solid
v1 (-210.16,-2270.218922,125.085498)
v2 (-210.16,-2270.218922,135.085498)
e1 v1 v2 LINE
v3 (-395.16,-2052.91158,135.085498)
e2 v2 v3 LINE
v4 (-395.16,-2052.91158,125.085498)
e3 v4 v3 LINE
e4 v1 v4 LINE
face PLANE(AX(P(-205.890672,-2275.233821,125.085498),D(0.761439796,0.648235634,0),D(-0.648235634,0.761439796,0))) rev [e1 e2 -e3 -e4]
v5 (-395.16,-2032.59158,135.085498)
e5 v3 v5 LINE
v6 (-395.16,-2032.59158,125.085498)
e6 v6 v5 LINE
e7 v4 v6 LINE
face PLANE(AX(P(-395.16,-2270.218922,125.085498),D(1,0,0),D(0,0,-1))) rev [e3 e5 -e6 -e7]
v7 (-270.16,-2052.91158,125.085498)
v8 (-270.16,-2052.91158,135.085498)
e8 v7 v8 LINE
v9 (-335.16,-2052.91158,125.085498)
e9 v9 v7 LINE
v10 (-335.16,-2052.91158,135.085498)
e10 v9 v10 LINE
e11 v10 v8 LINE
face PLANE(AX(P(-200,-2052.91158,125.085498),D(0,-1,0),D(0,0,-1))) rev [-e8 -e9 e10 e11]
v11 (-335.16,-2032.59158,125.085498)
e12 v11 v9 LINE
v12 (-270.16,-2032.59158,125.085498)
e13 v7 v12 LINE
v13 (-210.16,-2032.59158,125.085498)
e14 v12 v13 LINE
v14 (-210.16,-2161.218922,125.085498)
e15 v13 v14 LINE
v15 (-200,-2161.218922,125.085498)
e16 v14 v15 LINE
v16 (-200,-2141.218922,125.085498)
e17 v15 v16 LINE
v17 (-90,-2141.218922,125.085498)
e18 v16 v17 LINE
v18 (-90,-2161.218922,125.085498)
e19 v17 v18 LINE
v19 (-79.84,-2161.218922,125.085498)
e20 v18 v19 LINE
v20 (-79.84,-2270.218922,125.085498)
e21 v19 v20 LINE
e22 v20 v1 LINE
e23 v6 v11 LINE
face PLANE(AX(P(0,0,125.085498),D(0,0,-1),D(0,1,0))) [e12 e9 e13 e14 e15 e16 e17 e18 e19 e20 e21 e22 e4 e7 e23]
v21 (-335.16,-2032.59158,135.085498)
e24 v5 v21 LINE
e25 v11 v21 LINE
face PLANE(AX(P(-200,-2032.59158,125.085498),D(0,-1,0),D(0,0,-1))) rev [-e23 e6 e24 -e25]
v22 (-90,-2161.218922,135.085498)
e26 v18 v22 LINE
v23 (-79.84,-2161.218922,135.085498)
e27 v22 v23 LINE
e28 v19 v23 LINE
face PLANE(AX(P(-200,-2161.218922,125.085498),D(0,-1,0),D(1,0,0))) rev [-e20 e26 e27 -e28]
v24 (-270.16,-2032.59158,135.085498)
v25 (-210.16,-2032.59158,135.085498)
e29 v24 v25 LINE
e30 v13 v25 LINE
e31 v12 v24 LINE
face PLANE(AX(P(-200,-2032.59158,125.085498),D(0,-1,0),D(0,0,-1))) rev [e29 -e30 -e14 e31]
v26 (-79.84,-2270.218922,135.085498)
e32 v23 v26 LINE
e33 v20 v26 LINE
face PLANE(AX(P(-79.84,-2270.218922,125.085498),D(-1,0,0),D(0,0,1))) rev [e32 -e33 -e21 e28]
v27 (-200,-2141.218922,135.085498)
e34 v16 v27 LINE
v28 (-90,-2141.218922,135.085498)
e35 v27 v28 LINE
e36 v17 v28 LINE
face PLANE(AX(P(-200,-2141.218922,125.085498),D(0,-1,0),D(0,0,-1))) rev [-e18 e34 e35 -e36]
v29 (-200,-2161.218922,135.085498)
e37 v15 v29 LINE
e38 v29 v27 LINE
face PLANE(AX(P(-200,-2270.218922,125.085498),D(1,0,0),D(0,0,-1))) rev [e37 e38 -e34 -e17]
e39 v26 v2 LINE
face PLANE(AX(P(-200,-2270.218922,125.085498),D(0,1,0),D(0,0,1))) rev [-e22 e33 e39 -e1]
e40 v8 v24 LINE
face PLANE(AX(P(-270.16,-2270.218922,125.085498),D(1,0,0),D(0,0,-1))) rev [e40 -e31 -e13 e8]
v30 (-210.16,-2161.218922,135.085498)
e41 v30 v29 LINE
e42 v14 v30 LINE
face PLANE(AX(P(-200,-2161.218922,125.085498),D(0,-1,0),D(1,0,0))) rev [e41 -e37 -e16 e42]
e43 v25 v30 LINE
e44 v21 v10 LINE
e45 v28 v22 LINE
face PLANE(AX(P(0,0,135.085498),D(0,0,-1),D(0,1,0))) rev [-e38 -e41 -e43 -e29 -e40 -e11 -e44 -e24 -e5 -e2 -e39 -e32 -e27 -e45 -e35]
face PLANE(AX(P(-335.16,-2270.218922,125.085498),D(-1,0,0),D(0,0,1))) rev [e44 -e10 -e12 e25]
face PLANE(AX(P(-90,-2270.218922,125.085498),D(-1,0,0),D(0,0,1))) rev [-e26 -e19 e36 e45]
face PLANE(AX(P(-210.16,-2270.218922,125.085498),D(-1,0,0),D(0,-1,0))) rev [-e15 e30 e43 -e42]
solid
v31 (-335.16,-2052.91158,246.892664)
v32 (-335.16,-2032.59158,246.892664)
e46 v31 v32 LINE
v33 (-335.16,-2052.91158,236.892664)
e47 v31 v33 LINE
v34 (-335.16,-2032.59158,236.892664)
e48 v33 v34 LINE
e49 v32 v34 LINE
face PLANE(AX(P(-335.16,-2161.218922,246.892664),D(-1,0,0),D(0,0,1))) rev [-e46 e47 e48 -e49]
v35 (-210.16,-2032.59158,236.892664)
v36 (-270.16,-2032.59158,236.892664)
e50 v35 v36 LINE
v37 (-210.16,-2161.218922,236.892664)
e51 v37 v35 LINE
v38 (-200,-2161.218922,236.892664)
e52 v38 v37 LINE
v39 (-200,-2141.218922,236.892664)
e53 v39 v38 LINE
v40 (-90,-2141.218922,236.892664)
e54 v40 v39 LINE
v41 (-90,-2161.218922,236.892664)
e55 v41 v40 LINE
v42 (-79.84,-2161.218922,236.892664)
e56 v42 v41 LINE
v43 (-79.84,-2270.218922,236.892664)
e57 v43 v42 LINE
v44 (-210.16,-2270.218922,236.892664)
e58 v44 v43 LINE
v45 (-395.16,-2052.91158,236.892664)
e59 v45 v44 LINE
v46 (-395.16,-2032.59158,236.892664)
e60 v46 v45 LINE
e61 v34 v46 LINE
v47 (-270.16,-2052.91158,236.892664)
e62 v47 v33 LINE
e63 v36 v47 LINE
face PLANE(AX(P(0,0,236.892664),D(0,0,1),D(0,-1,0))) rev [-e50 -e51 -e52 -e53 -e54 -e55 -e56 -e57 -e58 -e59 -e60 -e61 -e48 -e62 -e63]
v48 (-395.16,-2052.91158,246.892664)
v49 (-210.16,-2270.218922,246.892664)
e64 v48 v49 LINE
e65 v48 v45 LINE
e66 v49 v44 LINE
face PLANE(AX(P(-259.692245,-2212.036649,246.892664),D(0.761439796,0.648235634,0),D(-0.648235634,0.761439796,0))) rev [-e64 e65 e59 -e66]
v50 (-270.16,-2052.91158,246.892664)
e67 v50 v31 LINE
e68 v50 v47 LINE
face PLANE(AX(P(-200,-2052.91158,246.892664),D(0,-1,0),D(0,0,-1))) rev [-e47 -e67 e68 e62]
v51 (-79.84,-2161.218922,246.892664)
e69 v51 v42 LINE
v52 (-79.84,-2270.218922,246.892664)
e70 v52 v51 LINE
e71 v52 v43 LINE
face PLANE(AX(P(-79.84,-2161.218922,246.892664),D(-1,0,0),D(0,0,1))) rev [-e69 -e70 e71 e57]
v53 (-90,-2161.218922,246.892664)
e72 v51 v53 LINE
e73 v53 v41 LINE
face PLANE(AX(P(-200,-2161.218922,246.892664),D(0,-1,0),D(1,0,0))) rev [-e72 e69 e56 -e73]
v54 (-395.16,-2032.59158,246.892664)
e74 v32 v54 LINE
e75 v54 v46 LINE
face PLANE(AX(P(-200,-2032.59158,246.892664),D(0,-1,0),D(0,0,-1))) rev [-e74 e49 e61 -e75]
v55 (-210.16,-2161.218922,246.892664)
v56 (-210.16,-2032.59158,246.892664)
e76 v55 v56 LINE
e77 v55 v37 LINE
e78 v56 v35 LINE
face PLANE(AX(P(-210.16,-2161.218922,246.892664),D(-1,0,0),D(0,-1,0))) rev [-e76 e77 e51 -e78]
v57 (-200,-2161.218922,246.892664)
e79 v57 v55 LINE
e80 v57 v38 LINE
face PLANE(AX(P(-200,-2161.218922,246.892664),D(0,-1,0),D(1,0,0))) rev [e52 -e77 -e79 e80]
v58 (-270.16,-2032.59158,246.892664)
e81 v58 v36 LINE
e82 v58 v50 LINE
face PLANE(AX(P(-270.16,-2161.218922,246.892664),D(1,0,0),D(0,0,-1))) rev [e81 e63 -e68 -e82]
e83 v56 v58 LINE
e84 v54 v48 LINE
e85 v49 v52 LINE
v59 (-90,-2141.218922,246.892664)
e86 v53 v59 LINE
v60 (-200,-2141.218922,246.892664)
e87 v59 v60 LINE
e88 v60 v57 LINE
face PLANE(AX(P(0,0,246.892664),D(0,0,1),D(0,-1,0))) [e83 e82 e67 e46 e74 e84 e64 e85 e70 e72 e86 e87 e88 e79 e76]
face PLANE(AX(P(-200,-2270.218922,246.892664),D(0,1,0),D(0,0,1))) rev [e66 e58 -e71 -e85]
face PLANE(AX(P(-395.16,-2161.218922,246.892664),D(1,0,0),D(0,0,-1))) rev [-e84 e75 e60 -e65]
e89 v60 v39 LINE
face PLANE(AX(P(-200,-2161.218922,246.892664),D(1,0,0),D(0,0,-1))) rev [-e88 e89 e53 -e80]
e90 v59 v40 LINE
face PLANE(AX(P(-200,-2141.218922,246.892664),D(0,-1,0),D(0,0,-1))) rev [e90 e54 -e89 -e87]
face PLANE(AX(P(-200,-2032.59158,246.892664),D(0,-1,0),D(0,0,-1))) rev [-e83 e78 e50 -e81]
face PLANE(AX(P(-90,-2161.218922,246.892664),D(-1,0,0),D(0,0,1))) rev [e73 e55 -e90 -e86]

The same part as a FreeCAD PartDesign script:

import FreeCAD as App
import Part
import Sketcher
from FreeCAD import Vector
Q = App.Units.Quantity

doc = App.newDocument("Part")
params = doc.addObject("Spreadsheet::Sheet", "Params")
for row, (alias, value) in enumerate([
    ("sketch1_width", "60 mm"),
    ("sketch1_width2", "65 mm"),
    ("sketch1_width3", "110 mm"),
    ("sketch1_height", "109 mm"),
    ("sketch1_height2", "20 mm"),
    ("pad1_length", "10 mm"),
    ("sketch2_width", "60 mm"),
    ("sketch2_width2", "65 mm"),
    ("sketch2_width3", "110 mm"),
    ("sketch2_height", "109 mm"),
    ("sketch2_height2", "20 mm"),
    ("pad2_length", "10 mm"),
], start=1):
    params.set(f"A{row}", alias)
    params.set(f"B{row}", "=" + value)
    params.setAlias(f"B{row}", alias)

body = doc.addObject("PartDesign::Body", "Body")

sketch1 = body.newObject("Sketcher::SketchObject", "Sketch")
sketch1.AttachmentSupport = (doc.getObject("XY_Plane"), [""])
sketch1.MapMode = "FlatFace"
sketch1.AttachmentOffset = App.Placement(Vector(0, 0, 236.892664), App.Rotation())
sketch1.addGeometry(Part.LineSegment(Vector(-200, -2161, 0), Vector(-210, -2161, 0)), False)
sketch1.addGeometry(Part.LineSegment(Vector(-210, -2161, 0), Vector(-210, -2033, 0)), False)
sketch1.addGeometry(Part.LineSegment(Vector(-210, -2033, 0), Vector(-270, -2033, 0)), False)
sketch1.addGeometry(Part.LineSegment(Vector(-270, -2033, 0), Vector(-270, -2053, 0)), False)
sketch1.addGeometry(Part.LineSegment(Vector(-270, -2053, 0), Vector(-335, -2053, 0)), False)
sketch1.addGeometry(Part.LineSegment(Vector(-335, -2053, 0), Vector(-335, -2033, 0)), False)
sketch1.addGeometry(Part.LineSegment(Vector(-335, -2033, 0), Vector(-395, -2033, 0)), False)
sketch1.addGeometry(Part.LineSegment(Vector(-395, -2033, 0), Vector(-395, -2053, 0)), False)
sketch1.addGeometry(Part.LineSegment(Vector(-395, -2053, 0), Vector(-210, -2270, 0)), False)
sketch1.addGeometry(Part.LineSegment(Vector(-210, -2270, 0), Vector(-80, -2270, 0)), False)
sketch1.addGeometry(Part.LineSegment(Vector(-80, -2270, 0), Vector(-80, -2161, 0)), False)
sketch1.addGeometry(Part.LineSegment(Vector(-80, -2161, 0), Vector(-90, -2161, 0)), False)
sketch1.addGeometry(Part.LineSegment(Vector(-90, -2161, 0), Vector(-90, -2141, 0)), False)
sketch1.addGeometry(Part.LineSegment(Vector(-90, -2141, 0), Vector(-200, -2141, 0)), False)
sketch1.addGeometry(Part.LineSegment(Vector(-200, -2141, 0), Vector(-200, -2161, 0)), False)
sketch1.addConstraint(Sketcher.Constraint("Coincident", 0, 2, 1, 1))
sketch1.addConstraint(Sketcher.Constraint("Coincident", 1, 2, 2, 1))
sketch1.addConstraint(Sketcher.Constraint("Coincident", 2, 2, 3, 1))
sketch1.addConstraint(Sketcher.Constraint("Coincident", 3, 2, 4, 1))
sketch1.addConstraint(Sketcher.Constraint("Coincident", 4, 2, 5, 1))
sketch1.addConstraint(Sketcher.Constraint("Coincident", 5, 2, 6, 1))
sketch1.addConstraint(Sketcher.Constraint("Coincident", 6, 2, 7, 1))
sketch1.addConstraint(Sketcher.Constraint("Coincident", 7, 2, 8, 1))
sketch1.addConstraint(Sketcher.Constraint("Coincident", 8, 2, 9, 1))
sketch1.addConstraint(Sketcher.Constraint("Coincident", 9, 2, 10, 1))
sketch1.addConstraint(Sketcher.Constraint("Coincident", 10, 2, 11, 1))
sketch1.addConstraint(Sketcher.Constraint("Coincident", 11, 2, 12, 1))
sketch1.addConstraint(Sketcher.Constraint("Coincident", 12, 2, 13, 1))
sketch1.addConstraint(Sketcher.Constraint("Coincident", 13, 2, 14, 1))
sketch1.addConstraint(Sketcher.Constraint("Coincident", 14, 2, 0, 1))
sketch1.addConstraint(Sketcher.Constraint("Horizontal", 0))
sketch1.addConstraint(Sketcher.Constraint("Vertical", 1))
sketch1.addConstraint(Sketcher.Constraint("Horizontal", 2))
sketch1.addConstraint(Sketcher.Constraint("Vertical", 3))
sketch1.addConstraint(Sketcher.Constraint("Horizontal", 4))
sketch1.addConstraint(Sketcher.Constraint("Vertical", 5))
sketch1.addConstraint(Sketcher.Constraint("Horizontal", 6))
sketch1.addConstraint(Sketcher.Constraint("Vertical", 7))
sketch1.addConstraint(Sketcher.Constraint("Horizontal", 9))
sketch1.addConstraint(Sketcher.Constraint("Vertical", 10))
sketch1.addConstraint(Sketcher.Constraint("Horizontal", 11))
sketch1.addConstraint(Sketcher.Constraint("Vertical", 12))
sketch1.addConstraint(Sketcher.Constraint("Horizontal", 13))
sketch1.addConstraint(Sketcher.Constraint("Vertical", 14))
sketch1.addConstraint(Sketcher.Constraint("Horizontal", 2, 2, 5, 2))
sketch1.addConstraint(Sketcher.Constraint("Horizontal", 4, 2, 7, 2))
sketch1.addConstraint(Sketcher.Constraint("Horizontal", 0, 2, 10, 2))
sketch1.addConstraint(Sketcher.Constraint("Vertical", 1, 2, 8, 2))
sketch1.addConstraint(Sketcher.Constraint("Equal", 2, 6))
sketch1.addConstraint(Sketcher.Constraint("Equal", 0, 11))
sketch1.addConstraint(Sketcher.Constraint("DistanceX", 2, 2, 2, 1, Q("60 mm")))
sketch1.addConstraint(Sketcher.Constraint("DistanceX", 4, 2, 4, 1, Q("65 mm")))
sketch1.addConstraint(Sketcher.Constraint("DistanceX", 13, 2, 13, 1, Q("110 mm")))
sketch1.addConstraint(Sketcher.Constraint("DistanceY", 10, 1, 10, 2, Q("109 mm")))
sketch1.addConstraint(Sketcher.Constraint("DistanceY", 12, 1, 12, 2, Q("20 mm")))
sketch1.addConstraint(Sketcher.Constraint("DistanceX", 11, 2, -1, 1, Q("90 mm")))
sketch1.addConstraint(Sketcher.Constraint("DistanceX", 0, 2, 0, 1, Q("10.16 mm")))
sketch1.addConstraint(Sketcher.Constraint("DistanceY", 3, 2, 3, 1, Q("20.32 mm")))
sketch1.addConstraint(Sketcher.Constraint("DistanceY", 1, 1, 1, 2, Q("128.627341 mm")))
sketch1.addConstraint(Sketcher.Constraint("DistanceY", 0, 2, -1, 1, Q("2161.218922 mm")))
sketch1.setExpression("Constraints[35]", "Params.sketch1_width")
sketch1.setExpression("Constraints[36]", "Params.sketch1_width2")
sketch1.setExpression("Constraints[37]", "Params.sketch1_width3")
sketch1.setExpression("Constraints[38]", "Params.sketch1_height")
sketch1.setExpression("Constraints[39]", "Params.sketch1_height2")
pad1 = body.newObject("PartDesign::Pad", "Pad")
pad1.Profile = sketch1
pad1.setExpression("Length", "Params.pad1_length")
body2 = doc.addObject("PartDesign::Body", "Body001")

sketch2 = body2.newObject("Sketcher::SketchObject", "Sketch001")
sketch2.AttachmentSupport = (doc.getObject("XY_Plane001"), [""])
sketch2.MapMode = "FlatFace"
sketch2.AttachmentOffset = App.Placement(Vector(0, 0, 125.085498), App.Rotation())
sketch2.addGeometry(Part.LineSegment(Vector(-200, -2161, 0), Vector(-210, -2161, 0)), False)
sketch2.addGeometry(Part.LineSegment(Vector(-210, -2161, 0), Vector(-210, -2033, 0)), False)
sketch2.addGeometry(Part.LineSegment(Vector(-210, -2033, 0), Vector(-270, -2033, 0)), False)
sketch2.addGeometry(Part.LineSegment(Vector(-270, -2033, 0), Vector(-270, -2053, 0)), False)
sketch2.addGeometry(Part.LineSegment(Vector(-270, -2053, 0), Vector(-335, -2053, 0)), False)
sketch2.addGeometry(Part.LineSegment(Vector(-335, -2053, 0), Vector(-335, -2033, 0)), False)
sketch2.addGeometry(Part.LineSegment(Vector(-335, -2033, 0), Vector(-395, -2033, 0)), False)
sketch2.addGeometry(Part.LineSegment(Vector(-395, -2033, 0), Vector(-395, -2053, 0)), False)
sketch2.addGeometry(Part.LineSegment(Vector(-395, -2053, 0), Vector(-210, -2270, 0)), False)
sketch2.addGeometry(Part.LineSegment(Vector(-210, -2270, 0), Vector(-80, -2270, 0)), False)
sketch2.addGeometry(Part.LineSegment(Vector(-80, -2270, 0), Vector(-80, -2161, 0)), False)
sketch2.addGeometry(Part.LineSegment(Vector(-80, -2161, 0), Vector(-90, -2161, 0)), False)
sketch2.addGeometry(Part.LineSegment(Vector(-90, -2161, 0), Vector(-90, -2141, 0)), False)
sketch2.addGeometry(Part.LineSegment(Vector(-90, -2141, 0), Vector(-200, -2141, 0)), False)
sketch2.addGeometry(Part.LineSegment(Vector(-200, -2141, 0), Vector(-200, -2161, 0)), False)
sketch2.addConstraint(Sketcher.Constraint("Coincident", 0, 2, 1, 1))
sketch2.addConstraint(Sketcher.Constraint("Coincident", 1, 2, 2, 1))
sketch2.addConstraint(Sketcher.Constraint("Coincident", 2, 2, 3, 1))
sketch2.addConstraint(Sketcher.Constraint("Coincident", 3, 2, 4, 1))
sketch2.addConstraint(Sketcher.Constraint("Coincident", 4, 2, 5, 1))
sketch2.addConstraint(Sketcher.Constraint("Coincident", 5, 2, 6, 1))
sketch2.addConstraint(Sketcher.Constraint("Coincident", 6, 2, 7, 1))
sketch2.addConstraint(Sketcher.Constraint("Coincident", 7, 2, 8, 1))
sketch2.addConstraint(Sketcher.Constraint("Coincident", 8, 2, 9, 1))
sketch2.addConstraint(Sketcher.Constraint("Coincident", 9, 2, 10, 1))
sketch2.addConstraint(Sketcher.Constraint("Coincident", 10, 2, 11, 1))
sketch2.addConstraint(Sketcher.Constraint("Coincident", 11, 2, 12, 1))
sketch2.addConstraint(Sketcher.Constraint("Coincident", 12, 2, 13, 1))
sketch2.addConstraint(Sketcher.Constraint("Coincident", 13, 2, 14, 1))
sketch2.addConstraint(Sketcher.Constraint("Coincident", 14, 2, 0, 1))
sketch2.addConstraint(Sketcher.Constraint("Horizontal", 0))
sketch2.addConstraint(Sketcher.Constraint("Vertical", 1))
sketch2.addConstraint(Sketcher.Constraint("Horizontal", 2))
sketch2.addConstraint(Sketcher.Constraint("Vertical", 3))
sketch2.addConstraint(Sketcher.Constraint("Horizontal", 4))
sketch2.addConstraint(Sketcher.Constraint("Vertical", 5))
sketch2.addConstraint(Sketcher.Constraint("Horizontal", 6))
sketch2.addConstraint(Sketcher.Constraint("Vertical", 7))
sketch2.addConstraint(Sketcher.Constraint("Horizontal", 9))
sketch2.addConstraint(Sketcher.Constraint("Vertical", 10))
sketch2.addConstraint(Sketcher.Constraint("Horizontal", 11))
sketch2.addConstraint(Sketcher.Constraint("Vertical", 12))
sketch2.addConstraint(Sketcher.Constraint("Horizontal", 13))
sketch2.addConstraint(Sketcher.Constraint("Vertical", 14))
sketch2.addConstraint(Sketcher.Constraint("Horizontal", 2, 2, 5, 2))
sketch2.addConstraint(Sketcher.Constraint("Horizontal", 4, 2, 7, 2))
sketch2.addConstraint(Sketcher.Constraint("Horizontal", 0, 2, 10, 2))
sketch2.addConstraint(Sketcher.Constraint("Vertical", 1, 2, 8, 2))
sketch2.addConstraint(Sketcher.Constraint("Equal", 2, 6))
sketch2.addConstraint(Sketcher.Constraint("Equal", 0, 11))
sketch2.addConstraint(Sketcher.Constraint("DistanceX", 2, 2, 2, 1, Q("60 mm")))
sketch2.addConstraint(Sketcher.Constraint("DistanceX", 4, 2, 4, 1, Q("65 mm")))
sketch2.addConstraint(Sketcher.Constraint("DistanceX", 13, 2, 13, 1, Q("110 mm")))
sketch2.addConstraint(Sketcher.Constraint("DistanceY", 10, 1, 10, 2, Q("109 mm")))
sketch2.addConstraint(Sketcher.Constraint("DistanceY", 12, 1, 12, 2, Q("20 mm")))
sketch2.addConstraint(Sketcher.Constraint("DistanceX", 11, 2, -1, 1, Q("90 mm")))
sketch2.addConstraint(Sketcher.Constraint("DistanceX", 0, 2, 0, 1, Q("10.16 mm")))
sketch2.addConstraint(Sketcher.Constraint("DistanceY", 3, 2, 3, 1, Q("20.32 mm")))
sketch2.addConstraint(Sketcher.Constraint("DistanceY", 1, 1, 1, 2, Q("128.627341 mm")))
sketch2.addConstraint(Sketcher.Constraint("DistanceY", 0, 2, -1, 1, Q("2161.218922 mm")))
sketch2.setExpression("Constraints[35]", "Params.sketch2_width")
sketch2.setExpression("Constraints[36]", "Params.sketch2_width2")
sketch2.setExpression("Constraints[37]", "Params.sketch2_width3")
sketch2.setExpression("Constraints[38]", "Params.sketch2_height")
sketch2.setExpression("Constraints[39]", "Params.sketch2_height2")
pad2 = body2.newObject("PartDesign::Pad", "Pad001")
pad2.Profile = sketch2
pad2.setExpression("Length", "Params.pad2_length")

doc.recompute()
